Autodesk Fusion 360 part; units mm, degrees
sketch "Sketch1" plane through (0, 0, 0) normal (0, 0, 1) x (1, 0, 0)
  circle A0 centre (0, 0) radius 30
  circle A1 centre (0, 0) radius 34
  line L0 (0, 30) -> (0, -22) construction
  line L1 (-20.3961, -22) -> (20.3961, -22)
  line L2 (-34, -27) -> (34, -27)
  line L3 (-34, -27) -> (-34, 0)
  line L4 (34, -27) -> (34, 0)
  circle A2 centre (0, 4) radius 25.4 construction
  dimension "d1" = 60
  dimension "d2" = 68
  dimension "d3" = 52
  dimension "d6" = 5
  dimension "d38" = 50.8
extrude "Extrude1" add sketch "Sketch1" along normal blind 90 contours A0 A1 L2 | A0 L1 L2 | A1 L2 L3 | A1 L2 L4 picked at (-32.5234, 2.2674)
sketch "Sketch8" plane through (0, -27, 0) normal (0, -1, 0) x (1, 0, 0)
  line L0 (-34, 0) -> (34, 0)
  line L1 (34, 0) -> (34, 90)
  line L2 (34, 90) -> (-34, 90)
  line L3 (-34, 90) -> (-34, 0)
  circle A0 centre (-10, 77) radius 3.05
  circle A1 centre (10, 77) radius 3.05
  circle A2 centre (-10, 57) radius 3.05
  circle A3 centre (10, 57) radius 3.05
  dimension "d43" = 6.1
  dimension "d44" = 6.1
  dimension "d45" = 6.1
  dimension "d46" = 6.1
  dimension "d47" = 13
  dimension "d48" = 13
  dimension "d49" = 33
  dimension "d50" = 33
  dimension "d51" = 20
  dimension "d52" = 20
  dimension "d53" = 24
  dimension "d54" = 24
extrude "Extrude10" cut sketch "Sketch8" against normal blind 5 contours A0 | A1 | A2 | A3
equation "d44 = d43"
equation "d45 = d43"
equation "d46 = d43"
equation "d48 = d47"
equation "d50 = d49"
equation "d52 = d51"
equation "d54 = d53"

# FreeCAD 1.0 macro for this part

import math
import FreeCAD as App
import Part
import Sketcher

V = App.Vector
Q = App.Units.Quantity

doc = App.newDocument("Part")
body = doc.addObject("PartDesign::Body", "Body")

# Sketch on XY plane
sketch1 = body.newObject("Sketcher::SketchObject", "Sketch")
sketch1.AttachmentSupport = (doc.getObject("XY_Plane"), [""])
sketch1.MapMode = "FlatFace"
sketch1.addGeometry(Part.LineSegment(V(34, -27, 0), V(34, 0, 0)), False)
sketch1.addGeometry(Part.ArcOfCircle(Part.Circle(V(0, 0, 0), V(0, 0, 1), 34), math.radians(0), math.radians(180)), False)
sketch1.addGeometry(Part.LineSegment(V(-34, 0, 0), V(-34, -27, 0)), False)
sketch1.addGeometry(Part.LineSegment(V(-34, -27, 0), V(34, -27, 0)), False)
sketch1.addGeometry(Part.ArcOfCircle(Part.Circle(V(0, 0, 0), V(0, 0, 1), 30), math.radians(-47.166541), math.radians(227.166541)), False)
sketch1.addGeometry(Part.LineSegment(V(-20.3961, -22, 0), V(20.3961, -22, 0)), False)
sketch1.addConstraint(Sketcher.Constraint("Tangent", 0, 2, 1, 1))
sketch1.addConstraint(Sketcher.Constraint("Tangent", 1, 2, 2, 1))
sketch1.addConstraint(Sketcher.Constraint("Coincident", 2, 2, 3, 1))
sketch1.addConstraint(Sketcher.Constraint("Coincident", 3, 2, 0, 1))
sketch1.addConstraint(Sketcher.Constraint("Coincident", 4, 1, 5, 2))
sketch1.addConstraint(Sketcher.Constraint("Coincident", 5, 1, 4, 2))
sketch1.addConstraint(Sketcher.Constraint("Vertical", 0))
sketch1.addConstraint(Sketcher.Constraint("Vertical", 2))
sketch1.addConstraint(Sketcher.Constraint("Horizontal", 3))
sketch1.addConstraint(Sketcher.Constraint("Horizontal", 5))
sketch1.addConstraint(Sketcher.Constraint("Coincident", 1, 3, -1, 1))
sketch1.addConstraint(Sketcher.Constraint("Coincident", 4, 3, -1, 1))
sketch1.addConstraint(Sketcher.Constraint("Radius", 1, Q("34 mm")))
sketch1.addConstraint(Sketcher.Constraint("Radius", 4, Q("30 mm")))
sketch1.addConstraint(Sketcher.Constraint("DistanceY", 3, 2, 4, 1, Q("5 mm")))
sketch1.addConstraint(Sketcher.Constraint("DistanceY", 0, 1, 0, 2, Q("27 mm")))
pad1 = body.newObject("PartDesign::Pad", "Pad")
pad1.Profile = sketch1
pad1.Length = 90

# Sketch on XZ plane
sketch2 = body.newObject("Sketcher::SketchObject", "Sketch001")
sketch2.AttachmentSupport = (doc.getObject("XZ_Plane"), [""])
sketch2.MapMode = "FlatFace"
sketch2.AttachmentOffset = App.Placement(V(0, 0, 27), App.Rotation())
sketch2.addGeometry(Part.Circle(V(-10, 77, 0), V(0, 0, 1), 3.05), False)
sketch2.addGeometry(Part.Circle(V(10, 77, 0), V(0, 0, 1), 3.05), False)
sketch2.addGeometry(Part.Circle(V(-10, 57, 0), V(0, 0, 1), 3.05), False)
sketch2.addGeometry(Part.Circle(V(10, 57, 0), V(0, 0, 1), 3.05), False)
sketch2.addConstraint(Sketcher.Constraint("Equal", 0, 1))
sketch2.addConstraint(Sketcher.Constraint("Equal", 1, 2))
sketch2.addConstraint(Sketcher.Constraint("Equal", 2, 3))
sketch2.addConstraint(Sketcher.Constraint("Symmetric", 0, 3, 1, 3, -2))
sketch2.addConstraint(Sketcher.Constraint("Symmetric", 2, 3, 3, 3, -2))
sketch2.addConstraint(Sketcher.Constraint("Vertical", 0, 3, 2, 3))
sketch2.addConstraint(Sketcher.Constraint("Diameter", 0, Q("6.1 mm")))
sketch2.addConstraint(Sketcher.Constraint("DistanceX", 0, 3, 1, 3, Q("20 mm")))
sketch2.addConstraint(Sketcher.Constraint("DistanceY", 2, 3, 0, 3, Q("20 mm")))
sketch2.addConstraint(Sketcher.Constraint("DistanceY", -1, 1, 0, 3, Q("77 mm")))
pocket1 = body.newObject("PartDesign::Pocket", "Pocket")
pocket1.Profile = sketch2
pocket1.Length = 5

doc.recompute()
